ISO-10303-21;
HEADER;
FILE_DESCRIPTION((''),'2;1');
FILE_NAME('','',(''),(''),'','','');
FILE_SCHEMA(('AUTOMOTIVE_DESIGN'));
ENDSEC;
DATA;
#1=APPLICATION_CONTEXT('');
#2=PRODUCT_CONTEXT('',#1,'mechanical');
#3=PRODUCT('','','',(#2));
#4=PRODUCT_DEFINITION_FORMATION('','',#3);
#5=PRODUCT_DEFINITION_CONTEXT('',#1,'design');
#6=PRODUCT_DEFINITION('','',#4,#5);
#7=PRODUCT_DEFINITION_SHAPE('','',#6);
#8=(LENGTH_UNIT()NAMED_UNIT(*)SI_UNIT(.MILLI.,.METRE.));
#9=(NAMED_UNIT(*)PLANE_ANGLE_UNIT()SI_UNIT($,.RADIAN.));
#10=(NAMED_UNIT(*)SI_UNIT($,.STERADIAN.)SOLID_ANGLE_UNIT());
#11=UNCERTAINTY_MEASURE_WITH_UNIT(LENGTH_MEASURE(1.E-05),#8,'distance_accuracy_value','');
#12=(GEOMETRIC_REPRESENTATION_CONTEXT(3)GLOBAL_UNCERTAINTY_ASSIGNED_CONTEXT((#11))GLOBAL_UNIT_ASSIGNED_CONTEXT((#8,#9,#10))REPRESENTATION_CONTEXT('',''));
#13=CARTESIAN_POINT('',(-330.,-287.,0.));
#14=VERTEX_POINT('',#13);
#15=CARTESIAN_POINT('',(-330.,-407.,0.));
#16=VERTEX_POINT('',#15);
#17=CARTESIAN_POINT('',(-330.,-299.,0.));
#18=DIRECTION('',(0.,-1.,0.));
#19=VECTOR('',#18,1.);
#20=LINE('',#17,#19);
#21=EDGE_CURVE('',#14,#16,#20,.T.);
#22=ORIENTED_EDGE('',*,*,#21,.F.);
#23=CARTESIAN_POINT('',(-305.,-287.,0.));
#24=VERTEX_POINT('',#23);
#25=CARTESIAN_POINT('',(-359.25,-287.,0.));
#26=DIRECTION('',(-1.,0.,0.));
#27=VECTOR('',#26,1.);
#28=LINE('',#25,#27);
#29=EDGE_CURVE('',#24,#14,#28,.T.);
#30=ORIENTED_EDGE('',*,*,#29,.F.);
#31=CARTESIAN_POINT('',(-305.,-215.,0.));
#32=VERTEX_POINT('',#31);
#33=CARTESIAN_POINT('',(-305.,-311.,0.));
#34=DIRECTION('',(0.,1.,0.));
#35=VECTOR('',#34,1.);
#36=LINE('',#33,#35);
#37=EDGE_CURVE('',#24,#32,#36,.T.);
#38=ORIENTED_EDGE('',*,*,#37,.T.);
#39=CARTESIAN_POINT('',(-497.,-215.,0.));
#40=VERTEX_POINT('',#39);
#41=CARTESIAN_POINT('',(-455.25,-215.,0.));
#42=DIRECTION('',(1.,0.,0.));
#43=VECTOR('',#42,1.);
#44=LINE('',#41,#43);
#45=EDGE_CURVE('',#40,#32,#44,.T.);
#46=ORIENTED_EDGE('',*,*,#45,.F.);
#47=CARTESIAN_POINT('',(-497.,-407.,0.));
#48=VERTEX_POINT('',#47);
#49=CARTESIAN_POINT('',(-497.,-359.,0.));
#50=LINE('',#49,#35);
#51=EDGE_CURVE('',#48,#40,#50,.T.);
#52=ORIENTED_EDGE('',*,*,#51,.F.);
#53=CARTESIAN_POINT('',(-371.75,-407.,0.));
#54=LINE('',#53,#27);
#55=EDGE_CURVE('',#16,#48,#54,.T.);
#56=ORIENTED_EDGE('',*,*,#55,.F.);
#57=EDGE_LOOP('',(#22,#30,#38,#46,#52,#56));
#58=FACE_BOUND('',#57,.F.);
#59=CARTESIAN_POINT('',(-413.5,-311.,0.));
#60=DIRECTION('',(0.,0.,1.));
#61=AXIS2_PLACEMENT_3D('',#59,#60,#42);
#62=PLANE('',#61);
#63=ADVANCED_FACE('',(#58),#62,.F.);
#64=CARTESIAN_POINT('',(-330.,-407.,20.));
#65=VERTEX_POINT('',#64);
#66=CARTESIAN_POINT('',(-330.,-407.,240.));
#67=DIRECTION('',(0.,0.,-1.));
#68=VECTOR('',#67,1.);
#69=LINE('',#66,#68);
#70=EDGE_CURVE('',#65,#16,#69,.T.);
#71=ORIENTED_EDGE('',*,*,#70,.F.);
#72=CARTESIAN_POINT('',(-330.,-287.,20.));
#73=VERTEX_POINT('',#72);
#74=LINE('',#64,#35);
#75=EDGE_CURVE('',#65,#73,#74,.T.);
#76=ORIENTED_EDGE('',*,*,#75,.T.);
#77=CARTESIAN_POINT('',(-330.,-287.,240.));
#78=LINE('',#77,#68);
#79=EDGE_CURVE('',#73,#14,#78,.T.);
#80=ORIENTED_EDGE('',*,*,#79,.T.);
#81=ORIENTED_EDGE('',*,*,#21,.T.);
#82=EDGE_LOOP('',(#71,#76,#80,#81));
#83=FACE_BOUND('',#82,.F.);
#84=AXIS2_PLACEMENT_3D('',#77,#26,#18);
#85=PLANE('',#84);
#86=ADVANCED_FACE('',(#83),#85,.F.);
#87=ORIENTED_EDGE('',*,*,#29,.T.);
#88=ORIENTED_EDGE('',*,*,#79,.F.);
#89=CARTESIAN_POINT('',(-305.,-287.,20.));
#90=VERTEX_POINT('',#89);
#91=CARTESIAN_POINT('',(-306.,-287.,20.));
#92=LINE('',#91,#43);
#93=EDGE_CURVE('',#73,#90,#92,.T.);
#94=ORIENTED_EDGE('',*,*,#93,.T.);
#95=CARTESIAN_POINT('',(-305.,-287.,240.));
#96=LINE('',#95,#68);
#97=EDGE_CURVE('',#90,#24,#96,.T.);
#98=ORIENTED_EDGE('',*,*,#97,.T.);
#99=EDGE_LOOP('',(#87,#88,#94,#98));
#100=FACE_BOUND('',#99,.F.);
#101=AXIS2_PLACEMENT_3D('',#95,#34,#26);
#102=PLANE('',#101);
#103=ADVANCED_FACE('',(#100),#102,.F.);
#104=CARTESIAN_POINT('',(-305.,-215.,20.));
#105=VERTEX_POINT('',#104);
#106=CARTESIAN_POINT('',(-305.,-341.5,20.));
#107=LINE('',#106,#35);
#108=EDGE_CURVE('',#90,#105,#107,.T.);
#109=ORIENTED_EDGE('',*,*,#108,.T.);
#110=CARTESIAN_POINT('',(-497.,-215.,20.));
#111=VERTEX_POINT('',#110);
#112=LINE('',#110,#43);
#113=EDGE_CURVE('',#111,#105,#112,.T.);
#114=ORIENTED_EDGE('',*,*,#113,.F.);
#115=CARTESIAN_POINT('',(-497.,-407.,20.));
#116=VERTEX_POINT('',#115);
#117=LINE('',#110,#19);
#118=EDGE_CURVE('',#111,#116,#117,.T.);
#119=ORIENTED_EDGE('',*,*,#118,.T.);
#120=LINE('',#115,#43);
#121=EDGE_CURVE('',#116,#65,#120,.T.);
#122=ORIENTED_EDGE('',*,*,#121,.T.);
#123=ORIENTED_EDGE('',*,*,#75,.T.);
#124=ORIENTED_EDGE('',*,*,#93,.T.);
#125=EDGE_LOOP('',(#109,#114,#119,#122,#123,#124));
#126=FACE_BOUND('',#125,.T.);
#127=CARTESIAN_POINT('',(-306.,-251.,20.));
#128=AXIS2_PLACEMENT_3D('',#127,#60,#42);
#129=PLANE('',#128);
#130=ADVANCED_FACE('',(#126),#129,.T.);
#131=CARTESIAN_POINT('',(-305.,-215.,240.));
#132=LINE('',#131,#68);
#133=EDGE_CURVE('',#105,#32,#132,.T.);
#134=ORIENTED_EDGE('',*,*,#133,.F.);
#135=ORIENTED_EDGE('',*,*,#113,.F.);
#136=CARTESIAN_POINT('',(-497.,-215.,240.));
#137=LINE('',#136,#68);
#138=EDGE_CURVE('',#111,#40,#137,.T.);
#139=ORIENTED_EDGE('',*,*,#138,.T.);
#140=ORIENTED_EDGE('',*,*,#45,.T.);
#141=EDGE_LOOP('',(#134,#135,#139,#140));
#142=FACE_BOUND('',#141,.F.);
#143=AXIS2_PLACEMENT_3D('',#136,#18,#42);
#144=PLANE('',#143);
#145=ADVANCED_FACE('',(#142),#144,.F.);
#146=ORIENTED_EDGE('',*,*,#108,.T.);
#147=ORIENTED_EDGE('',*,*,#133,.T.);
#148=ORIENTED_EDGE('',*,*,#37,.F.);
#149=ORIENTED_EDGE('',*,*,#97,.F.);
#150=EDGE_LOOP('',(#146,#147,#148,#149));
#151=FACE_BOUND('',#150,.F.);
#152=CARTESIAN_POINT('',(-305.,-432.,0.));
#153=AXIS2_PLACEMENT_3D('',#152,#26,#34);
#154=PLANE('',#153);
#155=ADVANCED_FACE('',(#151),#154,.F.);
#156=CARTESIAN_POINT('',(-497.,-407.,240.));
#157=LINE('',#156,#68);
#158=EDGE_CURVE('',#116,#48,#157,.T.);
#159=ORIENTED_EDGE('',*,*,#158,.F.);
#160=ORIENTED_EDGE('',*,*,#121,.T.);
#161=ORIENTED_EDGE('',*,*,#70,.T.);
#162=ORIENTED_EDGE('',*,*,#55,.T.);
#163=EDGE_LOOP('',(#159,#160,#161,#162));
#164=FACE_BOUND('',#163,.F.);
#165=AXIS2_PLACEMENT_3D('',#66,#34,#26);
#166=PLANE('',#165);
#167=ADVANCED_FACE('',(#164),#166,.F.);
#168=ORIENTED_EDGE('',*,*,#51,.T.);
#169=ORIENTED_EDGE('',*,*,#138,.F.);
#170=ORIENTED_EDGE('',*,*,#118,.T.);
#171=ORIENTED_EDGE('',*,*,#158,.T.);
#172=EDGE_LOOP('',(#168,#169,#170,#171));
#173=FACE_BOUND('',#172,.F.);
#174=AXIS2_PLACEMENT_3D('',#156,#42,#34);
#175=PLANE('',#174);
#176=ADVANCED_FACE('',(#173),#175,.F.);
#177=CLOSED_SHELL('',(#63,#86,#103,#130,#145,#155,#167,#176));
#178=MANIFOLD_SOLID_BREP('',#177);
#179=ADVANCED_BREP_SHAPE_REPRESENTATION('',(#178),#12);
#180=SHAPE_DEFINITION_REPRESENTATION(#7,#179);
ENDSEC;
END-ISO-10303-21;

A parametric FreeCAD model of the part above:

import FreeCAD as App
import Part
import Sketcher
Q = App.Units.Quantity


def add_polygon(sketch, points):
    """Adds a closed chain of lines whose ends are joined by coincident constraints."""
    first, n = sketch.GeometryCount, len(points)
    for a, b in zip(points, points[1:] + points[:1]):
        sketch.addGeometry(Part.LineSegment(App.Vector(*a, 0), App.Vector(*b, 0)), False)
    for i in range(n):
        sketch.addConstraint(Sketcher.Constraint("Coincident", first + i, 2, first + (i + 1) % n, 1))

doc = App.newDocument("Part")
params = doc.addObject("Spreadsheet::Sheet", "Params")
for row, (alias, value) in enumerate([
    ("sketch1_width", "167 mm"),
    ("sketch1_height", "192 mm"),
    ("pad1_length", "20 mm"),
    ("sketch2_width", "217 mm"),
    ("sketch2_width2", "167 mm"),
    ("sketch2_height", "242 mm"),
    ("sketch2_height2", "192 mm"),
    ("pad2_length", "240 mm"),
    ("sketch3_width", "48 mm"),
    ("sketch3_height", "72 mm"),
    ("pocket1_length", "250 mm"),
    ("sketch4_width", "79 mm"),
    ("sketch4_height", "85 mm"),
    ("pocket2_length", "25 mm"),
    ("sketch5_width", "20 mm"),
    ("sketch5_width2", "59 mm"),
    ("sketch5_height", "85 mm"),
    ("pad3_length", "25 mm"),
    ("sketch6_width", "192 mm"),
    ("sketch6_width2", "217 mm"),
    ("sketch6_width3", "25 mm"),
    ("sketch6_height", "242 mm"),
    ("sketch6_height2", "145 mm"),
], start=1):
    params.set(f"A{row}", alias)
    params.set(f"B{row}", "=" + value)
    params.setAlias(f"B{row}", alias)

body = doc.addObject("PartDesign::Body", "Body")

sketch1 = body.newObject("Sketcher::SketchObject", "Sketch")
sketch1.AttachmentSupport = (doc.getObject("XY_Plane"), [""])
sketch1.MapMode = "FlatFace"
add_polygon(sketch1, [(-497, -215), (-497, -407), (-330, -407), (-330, -215)])
sketch1.addConstraint([
    Sketcher.Constraint("Vertical", 0),
    Sketcher.Constraint("Horizontal", 1),
    Sketcher.Constraint("Vertical", 2),
    Sketcher.Constraint("Horizontal", 3),
    Sketcher.Constraint("DistanceX", 1, 1, 1, 2, Q("167 mm")),
    Sketcher.Constraint("DistanceY", 0, 2, 0, 1, Q("192 mm")),
    Sketcher.Constraint("DistanceX", 0, 2, -1, 1, Q("497 mm")),
    Sketcher.Constraint("DistanceY", 0, 2, -1, 1, Q("407 mm")),
])
sketch1.setExpression("Constraints[8]", "Params.sketch1_width")
sketch1.setExpression("Constraints[9]", "Params.sketch1_height")
pad1 = body.newObject("PartDesign::Pad", "Pad")
pad1.Profile = sketch1
pad1.setExpression("Length", "Params.pad1_length")

sketch2 = body.newObject("Sketcher::SketchObject", "Sketch001")
sketch2.AttachmentSupport = (doc.getObject("XY_Plane"), [""])
sketch2.MapMode = "FlatFace"
add_polygon(sketch2, [(-522, -190), (-522, -432), (-305, -432), (-305, -190)])
add_polygon(sketch2, [(-330, -407), (-497, -407), (-497, -215), (-330, -215)])
sketch2.addConstraint([
    Sketcher.Constraint("Vertical", 0),
    Sketcher.Constraint("Horizontal", 1),
    Sketcher.Constraint("Vertical", 2),
    Sketcher.Constraint("Horizontal", 3),
    Sketcher.Constraint("Horizontal", 4),
    Sketcher.Constraint("Vertical", 5),
    Sketcher.Constraint("Horizontal", 6),
    Sketcher.Constraint("Vertical", 7),
    Sketcher.Constraint("DistanceX", 1, 1, 1, 2, Q("217 mm")),
    Sketcher.Constraint("DistanceX", 4, 2, 4, 1, Q("167 mm")),
    Sketcher.Constraint("DistanceY", 0, 2, 0, 1, Q("242 mm")),
    Sketcher.Constraint("DistanceY", 5, 1, 5, 2, Q("192 mm")),
    Sketcher.Constraint("DistanceX", 0, 2, -1, 1, Q("522 mm")),
    Sketcher.Constraint("DistanceY", 0, 2, -1, 1, Q("432 mm")),
    Sketcher.Constraint("DistanceX", 4, 2, -1, 1, Q("497 mm")),
    Sketcher.Constraint("DistanceY", 4, 2, -1, 1, Q("407 mm")),
])
sketch2.setExpression("Constraints[16]", "Params.sketch2_width")
sketch2.setExpression("Constraints[17]", "Params.sketch2_width2")
sketch2.setExpression("Constraints[18]", "Params.sketch2_height")
sketch2.setExpression("Constraints[19]", "Params.sketch2_height2")
pad2 = body.newObject("PartDesign::Pad", "Pad001")
pad2.Profile = sketch2
pad2.setExpression("Length", "Params.pad2_length")

sketch3 = body.newObject("Sketcher::SketchObject", "Sketch002")
sketch3.AttachmentSupport = (doc.getObject("XY_Plane"), [""])
sketch3.MapMode = "FlatFace"
sketch3.AttachmentOffset = App.Placement(App.Vector(0, 0, 20), App.Rotation())
add_polygon(sketch3, [(-330, -215), (-330, -287), (-282, -287), (-282, -215)])
sketch3.addConstraint([
    Sketcher.Constraint("Vertical", 0),
    Sketcher.Constraint("Horizontal", 1),
    Sketcher.Constraint("Vertical", 2),
    Sketcher.Constraint("Horizontal", 3),
    Sketcher.Constraint("DistanceX", 1, 1, 1, 2, Q("48 mm")),
    Sketcher.Constraint("DistanceY", 0, 2, 0, 1, Q("72 mm")),
    Sketcher.Constraint("DistanceX", 0, 2, -1, 1, Q("330 mm")),
    Sketcher.Constraint("DistanceY", 0, 2, -1, 1, Q("287 mm")),
])
sketch3.setExpression("Constraints[8]", "Params.sketch3_width")
sketch3.setExpression("Constraints[9]", "Params.sketch3_height")
pocket1 = body.newObject("PartDesign::Pocket", "Pocket")
pocket1.Profile = sketch3
pocket1.setExpression("Length", "Params.pocket1_length")
pocket1.Reversed = True

sketch4 = body.newObject("Sketcher::SketchObject", "Sketch003")
sketch4.AttachmentSupport = (doc.getObject("YZ_Plane"), [""])
sketch4.MapMode = "FlatFace"
sketch4.AttachmentOffset = App.Placement(App.Vector(0, 0, -497), App.Rotation())
add_polygon(sketch4, [(-349, 220), (-349, 135), (-270, 135), (-270, 220)])
sketch4.addConstraint([
    Sketcher.Constraint("Vertical", 0),
    Sketcher.Constraint("Horizontal", 1),
    Sketcher.Constraint("Vertical", 2),
    Sketcher.Constraint("Horizontal", 3),
    Sketcher.Constraint("DistanceX", 1, 1, 1, 2, Q("79 mm")),
    Sketcher.Constraint("DistanceY", 0, 2, 0, 1, Q("85 mm")),
    Sketcher.Constraint("DistanceX", 0, 2, -1, 1, Q("349 mm")),
    Sketcher.Constraint("DistanceY", -1, 1, 0, 2, Q("135 mm")),
])
sketch4.setExpression("Constraints[8]", "Params.sketch4_width")
sketch4.setExpression("Constraints[9]", "Params.sketch4_height")
pocket2 = body.newObject("PartDesign::Pocket", "Pocket001")
pocket2.Profile = sketch4
pocket2.setExpression("Length", "Params.pocket2_length")

sketch5 = body.newObject("Sketcher::SketchObject", "Sketch004")
sketch5.AttachmentSupport = (doc.getObject("YZ_Plane"), [""])
sketch5.MapMode = "FlatFace"
sketch5.AttachmentOffset = App.Placement(App.Vector(0, 0, -497), App.Rotation())
add_polygon(sketch5, [(-270, 135), (-270, 220), (-290, 220), (-290, 155), (-349, 155), (-349, 135)])
sketch5.addConstraint([
    Sketcher.Constraint("Vertical", 0),
    Sketcher.Constraint("Horizontal", 1),
    Sketcher.Constraint("Vertical", 2),
    Sketcher.Constraint("Horizontal", 3),
    Sketcher.Constraint("Vertical", 4),
    Sketcher.Constraint("Horizontal", 5),
    Sketcher.Constraint("Equal", 1, 4),
    Sketcher.Constraint("DistanceX", 1, 2, 1, 1, Q("20 mm")),
    Sketcher.Constraint("DistanceX", 3, 2, 3, 1, Q("59 mm")),
    Sketcher.Constraint("DistanceY", 0, 1, 0, 2, Q("85 mm")),
    Sketcher.Constraint("DistanceX", 0, 2, -1, 1, Q("270 mm")),
    Sketcher.Constraint("DistanceY", -1, 1, 0, 2, Q("220 mm")),
])
sketch5.setExpression("Constraints[13]", "Params.sketch5_width")
sketch5.setExpression("Constraints[14]", "Params.sketch5_width2")
sketch5.setExpression("Constraints[15]", "Params.sketch5_height")
pad3 = body.newObject("PartDesign::Pad", "Pad002")
pad3.Profile = sketch5
pad3.setExpression("Length", "Params.pad3_length")
pad3.Reversed = True

sketch6 = body.newObject("Sketcher::SketchObject", "Sketch005")
sketch6.AttachmentSupport = (doc.getObject("XY_Plane"), [""])
sketch6.MapMode = "FlatFace"
sketch6.AttachmentOffset = App.Placement(App.Vector(0, 0, 240), App.Rotation())
add_polygon(sketch6, [(-497, -407), (-497, -215), (-305, -215), (-305, -190), (-522, -190), (-522, -432), (-305, -432), (-305, -287), (-330, -287), (-330, -407)])
sketch6.addConstraint([
    Sketcher.Constraint("Vertical", 0),
    Sketcher.Constraint("Horizontal", 1),
    Sketcher.Constraint("Vertical", 2),
    Sketcher.Constraint("Horizontal", 3),
    Sketcher.Constraint("Vertical", 4),
    Sketcher.Constraint("Horizontal", 5),
    Sketcher.Constraint("Vertical", 6),
    Sketcher.Constraint("Horizontal", 7),
    Sketcher.Constraint("Vertical", 8),
    Sketcher.Constraint("Horizontal", 9),
    Sketcher.Constraint("Vertical", 2, 2, 5, 2),
    Sketcher.Constraint("Equal", 1, 0),
    Sketcher.Constraint("Equal", 7, 2),
    Sketcher.Constraint("DistanceX", 1, 1, 1, 2, Q("192 mm")),
    Sketcher.Constraint("DistanceX", 3, 2, 3, 1, Q("217 mm")),
    Sketcher.Constraint("DistanceX", 7, 2, 7, 1, Q("25 mm")),
    Sketcher.Constraint("DistanceY", 4, 2, 4, 1, Q("242 mm")),
    Sketcher.Constraint("DistanceY", 6, 1, 6, 2, Q("145 mm")),
    Sketcher.Constraint("DistanceX", 0, 2, -1, 1, Q("497 mm")),
    Sketcher.Constraint("DistanceY", 0, 2, -1, 1, Q("215 mm")),
])
sketch6.setExpression("Constraints[23]", "Params.sketch6_width")
sketch6.setExpression("Constraints[24]", "Params.sketch6_width2")
sketch6.setExpression("Constraints[25]", "Params.sketch6_width3")
sketch6.setExpression("Constraints[26]", "Params.sketch6_height")
sketch6.setExpression("Constraints[27]", "Params.sketch6_height2")
pocket3 = body.newObject("PartDesign::Pocket", "Pocket002")
pocket3.Profile = sketch6
pocket3.Type = "ThroughAll"

doc.recompute()
